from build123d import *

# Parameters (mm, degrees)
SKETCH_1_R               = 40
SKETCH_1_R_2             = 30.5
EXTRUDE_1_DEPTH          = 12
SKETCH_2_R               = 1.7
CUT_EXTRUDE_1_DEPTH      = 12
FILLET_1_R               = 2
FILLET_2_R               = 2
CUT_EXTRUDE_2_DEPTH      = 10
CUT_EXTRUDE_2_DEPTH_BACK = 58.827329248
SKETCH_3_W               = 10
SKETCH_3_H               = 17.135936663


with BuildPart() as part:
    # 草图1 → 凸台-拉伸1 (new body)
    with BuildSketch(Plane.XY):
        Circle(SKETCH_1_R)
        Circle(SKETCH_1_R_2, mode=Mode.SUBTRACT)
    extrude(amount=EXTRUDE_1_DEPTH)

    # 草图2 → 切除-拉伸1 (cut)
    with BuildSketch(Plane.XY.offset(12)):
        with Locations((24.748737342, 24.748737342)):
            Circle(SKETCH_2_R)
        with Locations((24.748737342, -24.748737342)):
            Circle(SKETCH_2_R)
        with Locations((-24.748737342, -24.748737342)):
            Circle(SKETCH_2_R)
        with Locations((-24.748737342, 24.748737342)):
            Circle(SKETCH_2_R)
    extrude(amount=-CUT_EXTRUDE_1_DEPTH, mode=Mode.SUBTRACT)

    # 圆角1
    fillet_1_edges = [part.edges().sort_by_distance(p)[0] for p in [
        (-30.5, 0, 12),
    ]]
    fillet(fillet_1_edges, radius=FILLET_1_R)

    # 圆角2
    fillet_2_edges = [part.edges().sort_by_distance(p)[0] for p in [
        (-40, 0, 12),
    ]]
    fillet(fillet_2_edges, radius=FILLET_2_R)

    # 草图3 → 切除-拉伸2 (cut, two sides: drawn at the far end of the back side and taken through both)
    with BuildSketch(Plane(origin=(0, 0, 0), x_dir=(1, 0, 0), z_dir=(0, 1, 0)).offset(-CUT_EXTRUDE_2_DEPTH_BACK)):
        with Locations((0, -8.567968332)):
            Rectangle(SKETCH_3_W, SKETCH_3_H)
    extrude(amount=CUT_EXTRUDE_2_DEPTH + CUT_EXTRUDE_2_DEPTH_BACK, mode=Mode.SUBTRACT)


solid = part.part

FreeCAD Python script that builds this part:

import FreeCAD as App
import Part
import Sketcher
from FreeCAD import Vector
Q = App.Units.Quantity


def edges_at(feature, points):
    """Names of the edges that pass closest to the given points."""
    edges = feature.Shape.Edges
    near = lambda p: min(range(len(edges)), key=lambda i: edges[i].distToShape(Part.Vertex(*p))[0])
    return sorted({f"Edge{near(p) + 1}" for p in points})


def add_polygon(sketch, points):
    """Adds a closed chain of lines whose ends are joined by coincident constraints."""
    first, n = sketch.GeometryCount, len(points)
    for a, b in zip(points, points[1:] + points[:1]):
        sketch.addGeometry(Part.LineSegment(App.Vector(*a, 0), App.Vector(*b, 0)), False)
    for i in range(n):
        sketch.addConstraint(Sketcher.Constraint("Coincident", first + i, 2, first + (i + 1) % n, 1))

doc = App.newDocument("Part")
body = doc.addObject("PartDesign::Body", "Body")

# Sketch on XY plane
sketch1 = doc.addObject("Sketcher::SketchObject", "Sketch")
body.addObject(sketch1)
sketch1.AttachmentSupport = (doc.XY_Plane, [""])
sketch1.MapMode = "FlatFace"
sketch1.addGeometry([
    Part.Circle(Vector(0, 0, 0), Vector(0, 0, 1), 40),
    Part.Circle(Vector(0, 0, 0), Vector(0, 0, 1), 30.5),
], False)
sketch1.addConstraint([
    Sketcher.Constraint("Coincident", 0, 3, -1, 1),
    Sketcher.Constraint("Coincident", 1, 3, -1, 1),
    Sketcher.Constraint("Diameter", 0, Q("80 mm")),
    Sketcher.Constraint("Diameter", 1, Q("61 mm")),
])
pad1 = doc.addObject("PartDesign::Pad", "Pad")
body.addObject(pad1)
pad1.Profile = sketch1
pad1.Length = 12

# Sketch on XY plane
sketch2 = doc.addObject("Sketcher::SketchObject", "Sketch001")
body.addObject(sketch2)
sketch2.AttachmentSupport = (doc.XY_Plane, [""])
sketch2.MapMode = "FlatFace"
sketch2.AttachmentOffset = App.Placement(Vector(0, 0, 12), App.Rotation())
sketch2.addGeometry([
    Part.Circle(Vector(24.748737, 24.748737, 0), Vector(0, 0, 1), 1.7),
    Part.Circle(Vector(24.748737, -24.748737, 0), Vector(0, 0, 1), 1.7),
    Part.Circle(Vector(-24.748737, -24.748737, 0), Vector(0, 0, 1), 1.7),
    Part.Circle(Vector(-24.748737, 24.748737, 0), Vector(0, 0, 1), 1.7),
], False)
sketch2.addConstraint([
    Sketcher.Constraint("Equal", 0, 1),
    Sketcher.Constraint("Equal", 1, 2),
    Sketcher.Constraint("Equal", 2, 3),
    Sketcher.Constraint("Symmetric", 0, 3, 2, 3, -1, 1),
    Sketcher.Constraint("Symmetric", 1, 3, 3, 3, -1, 1),
    Sketcher.Constraint("Symmetric", 1, 3, 2, 3, -2),
    Sketcher.Constraint("Diameter", 0, Q("3.4 mm")),
    Sketcher.Constraint("DistanceX", -1, 1, 0, 3, Q("24.748737 mm")),
    Sketcher.Constraint("DistanceY", -1, 1, 0, 3, Q("24.748737 mm")),
])
pocket1 = doc.addObject("PartDesign::Pocket", "Pocket")
body.addObject(pocket1)
pocket1.Profile = sketch2
pocket1.Length = 12
doc.recompute()

fillet = doc.addObject("PartDesign::Fillet", "Fillet")
body.addObject(fillet)
fillet.Base = (pocket1, edges_at(pocket1, [(-30.5, 0, 12)]))
fillet.Radius = 2
doc.recompute()

fillet2 = doc.addObject("PartDesign::Fillet", "Fillet001")
body.addObject(fillet2)
fillet2.Base = (fillet, edges_at(fillet, [(-40, 0, 12)]))
fillet2.Radius = 2

# Sketch on XZ plane
sketch3 = doc.addObject("Sketcher::SketchObject", "Sketch002")
body.addObject(sketch3)
sketch3.AttachmentSupport = (doc.XZ_Plane, [""])
sketch3.MapMode = "FlatFace"
add_polygon(sketch3, [(-5, 0), (-5, 17.135937), (5, 17.135937), (5, 0)])  # lines 0-3
sketch3.addConstraint([
    Sketcher.Constraint("Vertical", 0),
    Sketcher.Constraint("Horizontal", 1),
    Sketcher.Constraint("Vertical", 2),
    Sketcher.Constraint("Horizontal", 3),
    Sketcher.Constraint("Symmetric", 2, 2, 3, 2, -1, 1),
    Sketcher.Constraint("DistanceX", 1, 1, 1, 2, Q("10 mm")),
    Sketcher.Constraint("DistanceY", 0, 1, 0, 2, Q("17.135937 mm")),
])
pocket2 = doc.addObject("PartDesign::Pocket", "Pocket001")
body.addObject(pocket2)
pocket2.Profile = sketch3
pocket2.Type = "TwoLengths"
pocket2.Length = 10
pocket2.Length2 = 58.827329

doc.recompute()
